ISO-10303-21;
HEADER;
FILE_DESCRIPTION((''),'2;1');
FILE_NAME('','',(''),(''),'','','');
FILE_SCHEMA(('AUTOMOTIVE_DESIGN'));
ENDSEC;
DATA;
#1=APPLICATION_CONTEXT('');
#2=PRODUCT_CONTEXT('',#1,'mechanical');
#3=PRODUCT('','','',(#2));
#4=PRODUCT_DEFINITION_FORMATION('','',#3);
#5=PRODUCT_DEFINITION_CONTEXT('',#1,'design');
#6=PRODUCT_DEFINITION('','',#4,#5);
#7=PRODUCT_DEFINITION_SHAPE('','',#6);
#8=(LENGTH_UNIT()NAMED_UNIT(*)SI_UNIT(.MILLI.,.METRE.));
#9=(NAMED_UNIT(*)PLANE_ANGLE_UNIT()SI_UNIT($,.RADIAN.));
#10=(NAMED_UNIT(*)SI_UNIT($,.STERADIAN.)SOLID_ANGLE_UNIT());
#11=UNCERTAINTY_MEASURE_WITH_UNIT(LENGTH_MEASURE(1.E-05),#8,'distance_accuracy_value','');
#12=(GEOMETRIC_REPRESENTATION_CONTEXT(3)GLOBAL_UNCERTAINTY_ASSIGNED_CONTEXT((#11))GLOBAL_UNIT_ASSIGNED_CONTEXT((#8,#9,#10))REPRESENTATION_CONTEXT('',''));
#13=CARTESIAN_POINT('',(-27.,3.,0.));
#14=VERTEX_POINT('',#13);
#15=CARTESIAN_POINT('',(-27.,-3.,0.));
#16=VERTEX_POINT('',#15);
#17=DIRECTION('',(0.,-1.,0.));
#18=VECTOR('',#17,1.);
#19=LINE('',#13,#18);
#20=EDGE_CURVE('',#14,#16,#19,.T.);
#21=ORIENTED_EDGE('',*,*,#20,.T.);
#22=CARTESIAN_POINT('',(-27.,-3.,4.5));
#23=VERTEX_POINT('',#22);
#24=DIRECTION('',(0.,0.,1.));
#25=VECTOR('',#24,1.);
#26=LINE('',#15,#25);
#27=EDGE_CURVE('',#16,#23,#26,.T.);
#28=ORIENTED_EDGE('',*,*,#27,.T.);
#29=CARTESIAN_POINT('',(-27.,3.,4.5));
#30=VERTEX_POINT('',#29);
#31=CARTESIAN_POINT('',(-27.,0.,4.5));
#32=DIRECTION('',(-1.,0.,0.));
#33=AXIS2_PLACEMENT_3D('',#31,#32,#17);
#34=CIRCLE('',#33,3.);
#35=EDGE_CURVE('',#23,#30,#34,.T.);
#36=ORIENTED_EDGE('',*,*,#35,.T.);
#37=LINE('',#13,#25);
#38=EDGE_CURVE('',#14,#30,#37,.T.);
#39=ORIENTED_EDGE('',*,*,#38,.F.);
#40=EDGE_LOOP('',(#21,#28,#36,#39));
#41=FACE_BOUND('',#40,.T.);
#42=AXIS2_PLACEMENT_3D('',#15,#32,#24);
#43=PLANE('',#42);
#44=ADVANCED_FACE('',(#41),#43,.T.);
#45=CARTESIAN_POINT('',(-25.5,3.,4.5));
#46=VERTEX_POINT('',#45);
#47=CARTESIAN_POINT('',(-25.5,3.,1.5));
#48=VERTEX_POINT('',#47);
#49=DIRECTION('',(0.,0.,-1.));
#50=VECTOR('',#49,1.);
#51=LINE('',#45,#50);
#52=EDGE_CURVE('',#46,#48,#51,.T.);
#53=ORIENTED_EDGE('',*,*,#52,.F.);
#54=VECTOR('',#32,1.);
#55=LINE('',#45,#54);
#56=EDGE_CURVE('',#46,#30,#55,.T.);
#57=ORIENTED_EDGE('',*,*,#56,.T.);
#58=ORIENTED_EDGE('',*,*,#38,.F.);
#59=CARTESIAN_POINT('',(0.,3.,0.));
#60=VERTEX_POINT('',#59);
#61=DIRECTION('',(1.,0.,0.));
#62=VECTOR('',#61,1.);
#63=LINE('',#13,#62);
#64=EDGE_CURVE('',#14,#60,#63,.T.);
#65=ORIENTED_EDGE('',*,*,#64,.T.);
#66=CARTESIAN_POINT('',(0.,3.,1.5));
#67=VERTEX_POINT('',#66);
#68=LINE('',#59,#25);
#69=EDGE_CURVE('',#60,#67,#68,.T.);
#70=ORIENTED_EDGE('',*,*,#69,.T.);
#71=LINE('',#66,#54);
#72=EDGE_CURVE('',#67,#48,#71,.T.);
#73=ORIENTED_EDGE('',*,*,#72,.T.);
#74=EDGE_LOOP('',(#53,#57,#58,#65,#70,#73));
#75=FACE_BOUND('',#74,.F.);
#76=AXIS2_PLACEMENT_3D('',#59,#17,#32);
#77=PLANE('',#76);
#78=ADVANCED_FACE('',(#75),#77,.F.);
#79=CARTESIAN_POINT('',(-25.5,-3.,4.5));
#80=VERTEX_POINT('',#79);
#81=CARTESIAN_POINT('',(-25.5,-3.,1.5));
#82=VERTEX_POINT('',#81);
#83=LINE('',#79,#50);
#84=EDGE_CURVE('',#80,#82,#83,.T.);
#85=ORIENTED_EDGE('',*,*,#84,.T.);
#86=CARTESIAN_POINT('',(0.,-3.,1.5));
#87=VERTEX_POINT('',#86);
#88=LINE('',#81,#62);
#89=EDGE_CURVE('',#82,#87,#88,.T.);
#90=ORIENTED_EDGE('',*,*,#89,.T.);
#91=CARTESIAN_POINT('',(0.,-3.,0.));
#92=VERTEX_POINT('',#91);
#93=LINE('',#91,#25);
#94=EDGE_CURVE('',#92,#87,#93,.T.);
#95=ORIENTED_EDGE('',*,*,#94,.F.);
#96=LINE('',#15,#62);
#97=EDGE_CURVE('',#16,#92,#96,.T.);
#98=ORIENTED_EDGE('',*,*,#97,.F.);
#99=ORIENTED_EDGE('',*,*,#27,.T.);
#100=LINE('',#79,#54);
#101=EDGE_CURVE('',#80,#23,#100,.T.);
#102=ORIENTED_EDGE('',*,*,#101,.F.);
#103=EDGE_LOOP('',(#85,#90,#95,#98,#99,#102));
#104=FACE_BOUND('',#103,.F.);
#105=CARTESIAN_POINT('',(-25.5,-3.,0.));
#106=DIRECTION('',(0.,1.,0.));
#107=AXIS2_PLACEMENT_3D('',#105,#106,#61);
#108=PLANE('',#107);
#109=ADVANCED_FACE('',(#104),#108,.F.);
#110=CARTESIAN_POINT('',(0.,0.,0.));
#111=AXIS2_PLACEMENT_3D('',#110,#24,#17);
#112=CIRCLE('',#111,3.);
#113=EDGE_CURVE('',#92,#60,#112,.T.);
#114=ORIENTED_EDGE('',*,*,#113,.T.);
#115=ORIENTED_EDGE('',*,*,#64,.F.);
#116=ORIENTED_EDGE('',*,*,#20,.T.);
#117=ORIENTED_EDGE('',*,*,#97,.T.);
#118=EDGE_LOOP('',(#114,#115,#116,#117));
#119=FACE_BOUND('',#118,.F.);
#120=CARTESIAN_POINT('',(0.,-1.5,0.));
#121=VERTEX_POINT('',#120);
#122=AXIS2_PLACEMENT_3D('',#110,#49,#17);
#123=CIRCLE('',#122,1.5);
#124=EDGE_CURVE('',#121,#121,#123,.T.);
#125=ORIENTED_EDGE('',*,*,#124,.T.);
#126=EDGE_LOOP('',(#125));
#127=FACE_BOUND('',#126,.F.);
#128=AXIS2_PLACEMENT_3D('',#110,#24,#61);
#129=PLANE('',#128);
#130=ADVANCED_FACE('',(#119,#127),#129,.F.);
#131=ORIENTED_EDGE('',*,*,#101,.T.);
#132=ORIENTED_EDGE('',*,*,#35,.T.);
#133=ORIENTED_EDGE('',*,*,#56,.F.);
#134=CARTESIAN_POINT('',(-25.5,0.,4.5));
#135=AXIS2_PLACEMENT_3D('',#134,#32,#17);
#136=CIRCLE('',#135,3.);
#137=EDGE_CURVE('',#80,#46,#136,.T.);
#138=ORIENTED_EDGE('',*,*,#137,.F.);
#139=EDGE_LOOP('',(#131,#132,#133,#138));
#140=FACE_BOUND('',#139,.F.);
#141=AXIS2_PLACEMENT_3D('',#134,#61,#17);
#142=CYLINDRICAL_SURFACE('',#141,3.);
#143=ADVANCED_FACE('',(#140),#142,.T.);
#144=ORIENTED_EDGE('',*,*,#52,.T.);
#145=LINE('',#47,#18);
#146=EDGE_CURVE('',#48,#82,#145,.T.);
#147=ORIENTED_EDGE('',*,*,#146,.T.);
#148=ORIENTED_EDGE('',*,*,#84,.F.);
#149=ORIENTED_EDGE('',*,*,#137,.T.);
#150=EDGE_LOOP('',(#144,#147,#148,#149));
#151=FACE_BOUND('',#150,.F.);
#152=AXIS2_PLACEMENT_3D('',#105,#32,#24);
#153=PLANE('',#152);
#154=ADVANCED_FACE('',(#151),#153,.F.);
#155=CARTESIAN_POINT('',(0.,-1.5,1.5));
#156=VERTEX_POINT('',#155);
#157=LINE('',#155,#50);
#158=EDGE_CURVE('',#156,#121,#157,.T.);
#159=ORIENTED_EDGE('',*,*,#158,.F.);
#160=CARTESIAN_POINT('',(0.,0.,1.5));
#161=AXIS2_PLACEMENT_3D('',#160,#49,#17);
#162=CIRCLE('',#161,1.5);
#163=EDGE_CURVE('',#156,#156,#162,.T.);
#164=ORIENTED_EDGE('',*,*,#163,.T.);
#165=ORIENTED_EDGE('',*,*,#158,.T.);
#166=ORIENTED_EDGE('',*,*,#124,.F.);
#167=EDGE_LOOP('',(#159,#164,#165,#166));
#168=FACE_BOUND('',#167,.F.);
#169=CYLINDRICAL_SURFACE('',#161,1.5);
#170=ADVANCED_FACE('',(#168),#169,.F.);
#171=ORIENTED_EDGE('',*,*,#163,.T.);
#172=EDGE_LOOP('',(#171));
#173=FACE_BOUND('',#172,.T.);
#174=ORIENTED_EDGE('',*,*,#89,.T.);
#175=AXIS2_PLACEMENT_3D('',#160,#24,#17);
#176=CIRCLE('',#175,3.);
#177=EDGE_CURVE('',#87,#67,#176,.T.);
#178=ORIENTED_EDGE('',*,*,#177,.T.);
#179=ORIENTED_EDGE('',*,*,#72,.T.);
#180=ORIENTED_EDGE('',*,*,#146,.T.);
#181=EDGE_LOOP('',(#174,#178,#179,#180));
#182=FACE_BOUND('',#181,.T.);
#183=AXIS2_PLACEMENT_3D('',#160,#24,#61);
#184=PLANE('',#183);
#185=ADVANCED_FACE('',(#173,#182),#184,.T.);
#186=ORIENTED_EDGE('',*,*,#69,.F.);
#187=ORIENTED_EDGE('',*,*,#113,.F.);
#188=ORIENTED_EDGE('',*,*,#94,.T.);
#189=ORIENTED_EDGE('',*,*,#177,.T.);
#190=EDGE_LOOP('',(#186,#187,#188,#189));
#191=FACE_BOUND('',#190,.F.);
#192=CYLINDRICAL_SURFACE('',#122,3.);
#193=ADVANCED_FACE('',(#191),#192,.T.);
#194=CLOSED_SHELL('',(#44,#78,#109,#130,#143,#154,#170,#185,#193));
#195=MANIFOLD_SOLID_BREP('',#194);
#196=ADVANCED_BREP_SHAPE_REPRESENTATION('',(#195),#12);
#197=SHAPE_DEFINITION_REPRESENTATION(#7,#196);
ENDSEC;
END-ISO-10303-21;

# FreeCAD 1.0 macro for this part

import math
import FreeCAD as App
import Part
import Sketcher

V = App.Vector
Q = App.Units.Quantity

doc = App.newDocument("Part")
body = doc.addObject("PartDesign::Body", "Body")

sketch1 = doc.addObject("Sketcher::SketchObject", "Sketch")
body.addObject(sketch1)
sketch1.AttachmentSupport = (doc.XY_Plane, [""])
sketch1.MapMode = "FlatFace"
sketch1.addGeometry(Part.LineSegment(V(-25.5, -3, 0), V(0, -3, 0)), False)
sketch1.addGeometry(Part.ArcOfCircle(Part.Circle(V(0, 0, 0), V(0, 0, 1), 3), math.radians(-90), math.radians(90)), False)
sketch1.addGeometry(Part.LineSegment(V(0, 3, 0), V(-25.5, 3, 0)), False)
sketch1.addGeometry(Part.LineSegment(V(-25.5, 3, 0), V(-25.5, -3, 0)), False)
sketch1.addConstraint(Sketcher.Constraint("Tangent", 0, 2, 1, 1))
sketch1.addConstraint(Sketcher.Constraint("Tangent", 1, 2, 2, 1))
sketch1.addConstraint(Sketcher.Constraint("Coincident", 2, 2, 3, 1))
sketch1.addConstraint(Sketcher.Constraint("Coincident", 3, 2, 0, 1))
sketch1.addConstraint(Sketcher.Constraint("Horizontal", 0))
sketch1.addConstraint(Sketcher.Constraint("Horizontal", 2))
sketch1.addConstraint(Sketcher.Constraint("Vertical", 3))
sketch1.addConstraint(Sketcher.Constraint("Coincident", 1, 3, -1, 1))
sketch1.addConstraint(Sketcher.Constraint("Radius", 1, Q("3 mm")))
sketch1.addConstraint(Sketcher.Constraint("DistanceX", 0, 1, 0, 2, Q("25.5 mm")))
pad1 = doc.addObject("PartDesign::Pad", "Pad")
body.addObject(pad1)
pad1.Profile = sketch1
pad1.Length = 1.5

sketch2 = doc.addObject("Sketcher::SketchObject", "Sketch001")
body.addObject(sketch2)
sketch2.AttachmentSupport = (doc.YZ_Plane, [""])
sketch2.MapMode = "FlatFace"
sketch2.AttachmentOffset = App.Placement(V(0, 0, -25.5), App.Rotation())
sketch2.addGeometry(Part.LineSegment(V(3, 0, 0), V(-3, 0, 0)), False)
sketch2.addGeometry(Part.LineSegment(V(-3, 0, 0), V(-3, 4.5, 0)), False)
sketch2.addGeometry(Part.ArcOfCircle(Part.Circle(V(0, 4.5, 0), V(0, 0, 1), 3), math.radians(0), math.radians(180)), False)
sketch2.addGeometry(Part.LineSegment(V(3, 4.5, 0), V(3, 0, 0)), False)
sketch2.addConstraint(Sketcher.Constraint("Coincident", 0, 2, 1, 1))
sketch2.addConstraint(Sketcher.Constraint("Tangent", 1, 2, 2, 2))
sketch2.addConstraint(Sketcher.Constraint("Tangent", 2, 1, 3, 1))
sketch2.addConstraint(Sketcher.Constraint("Coincident", 3, 2, 0, 1))
sketch2.addConstraint(Sketcher.Constraint("Horizontal", 0))
sketch2.addConstraint(Sketcher.Constraint("Vertical", 1))
sketch2.addConstraint(Sketcher.Constraint("Vertical", 3))
sketch2.addConstraint(Sketcher.Constraint("Symmetric", 0, 2, 3, 2, -1, 1))
sketch2.addConstraint(Sketcher.Constraint("Radius", 2, Q("3 mm")))
sketch2.addConstraint(Sketcher.Constraint("DistanceY", 1, 1, 1, 2, Q("4.5 mm")))
pad2 = doc.addObject("PartDesign::Pad", "Pad001")
body.addObject(pad2)
pad2.Profile = sketch2
pad2.Length = 1.5
pad2.Reversed = True

sketch3 = doc.addObject("Sketcher::SketchObject", "Sketch002")
body.addObject(sketch3)
sketch3.AttachmentSupport = (doc.XY_Plane, [""])
sketch3.MapMode = "FlatFace"
sketch3.AttachmentOffset = App.Placement(V(0, 0, 1.5), App.Rotation())
sketch3.addGeometry(Part.Circle(V(0, 0, 0), V(0, 0, 1), 1.5), False)
sketch3.addConstraint(Sketcher.Constraint("Coincident", 0, 3, -1, 1))
sketch3.addConstraint(Sketcher.Constraint("Diameter", 0, Q("3 mm")))
doc.recompute()
hole = doc.addObject("PartDesign::Hole", "Hole")
body.addObject(hole)
hole.Profile = sketch3
hole.ThreadType = "None"
hole.Diameter = 3
hole.DepthType = "Dimension"
hole.Depth = 1.5
hole.DrillPoint = "Flat"

doc.recompute()
